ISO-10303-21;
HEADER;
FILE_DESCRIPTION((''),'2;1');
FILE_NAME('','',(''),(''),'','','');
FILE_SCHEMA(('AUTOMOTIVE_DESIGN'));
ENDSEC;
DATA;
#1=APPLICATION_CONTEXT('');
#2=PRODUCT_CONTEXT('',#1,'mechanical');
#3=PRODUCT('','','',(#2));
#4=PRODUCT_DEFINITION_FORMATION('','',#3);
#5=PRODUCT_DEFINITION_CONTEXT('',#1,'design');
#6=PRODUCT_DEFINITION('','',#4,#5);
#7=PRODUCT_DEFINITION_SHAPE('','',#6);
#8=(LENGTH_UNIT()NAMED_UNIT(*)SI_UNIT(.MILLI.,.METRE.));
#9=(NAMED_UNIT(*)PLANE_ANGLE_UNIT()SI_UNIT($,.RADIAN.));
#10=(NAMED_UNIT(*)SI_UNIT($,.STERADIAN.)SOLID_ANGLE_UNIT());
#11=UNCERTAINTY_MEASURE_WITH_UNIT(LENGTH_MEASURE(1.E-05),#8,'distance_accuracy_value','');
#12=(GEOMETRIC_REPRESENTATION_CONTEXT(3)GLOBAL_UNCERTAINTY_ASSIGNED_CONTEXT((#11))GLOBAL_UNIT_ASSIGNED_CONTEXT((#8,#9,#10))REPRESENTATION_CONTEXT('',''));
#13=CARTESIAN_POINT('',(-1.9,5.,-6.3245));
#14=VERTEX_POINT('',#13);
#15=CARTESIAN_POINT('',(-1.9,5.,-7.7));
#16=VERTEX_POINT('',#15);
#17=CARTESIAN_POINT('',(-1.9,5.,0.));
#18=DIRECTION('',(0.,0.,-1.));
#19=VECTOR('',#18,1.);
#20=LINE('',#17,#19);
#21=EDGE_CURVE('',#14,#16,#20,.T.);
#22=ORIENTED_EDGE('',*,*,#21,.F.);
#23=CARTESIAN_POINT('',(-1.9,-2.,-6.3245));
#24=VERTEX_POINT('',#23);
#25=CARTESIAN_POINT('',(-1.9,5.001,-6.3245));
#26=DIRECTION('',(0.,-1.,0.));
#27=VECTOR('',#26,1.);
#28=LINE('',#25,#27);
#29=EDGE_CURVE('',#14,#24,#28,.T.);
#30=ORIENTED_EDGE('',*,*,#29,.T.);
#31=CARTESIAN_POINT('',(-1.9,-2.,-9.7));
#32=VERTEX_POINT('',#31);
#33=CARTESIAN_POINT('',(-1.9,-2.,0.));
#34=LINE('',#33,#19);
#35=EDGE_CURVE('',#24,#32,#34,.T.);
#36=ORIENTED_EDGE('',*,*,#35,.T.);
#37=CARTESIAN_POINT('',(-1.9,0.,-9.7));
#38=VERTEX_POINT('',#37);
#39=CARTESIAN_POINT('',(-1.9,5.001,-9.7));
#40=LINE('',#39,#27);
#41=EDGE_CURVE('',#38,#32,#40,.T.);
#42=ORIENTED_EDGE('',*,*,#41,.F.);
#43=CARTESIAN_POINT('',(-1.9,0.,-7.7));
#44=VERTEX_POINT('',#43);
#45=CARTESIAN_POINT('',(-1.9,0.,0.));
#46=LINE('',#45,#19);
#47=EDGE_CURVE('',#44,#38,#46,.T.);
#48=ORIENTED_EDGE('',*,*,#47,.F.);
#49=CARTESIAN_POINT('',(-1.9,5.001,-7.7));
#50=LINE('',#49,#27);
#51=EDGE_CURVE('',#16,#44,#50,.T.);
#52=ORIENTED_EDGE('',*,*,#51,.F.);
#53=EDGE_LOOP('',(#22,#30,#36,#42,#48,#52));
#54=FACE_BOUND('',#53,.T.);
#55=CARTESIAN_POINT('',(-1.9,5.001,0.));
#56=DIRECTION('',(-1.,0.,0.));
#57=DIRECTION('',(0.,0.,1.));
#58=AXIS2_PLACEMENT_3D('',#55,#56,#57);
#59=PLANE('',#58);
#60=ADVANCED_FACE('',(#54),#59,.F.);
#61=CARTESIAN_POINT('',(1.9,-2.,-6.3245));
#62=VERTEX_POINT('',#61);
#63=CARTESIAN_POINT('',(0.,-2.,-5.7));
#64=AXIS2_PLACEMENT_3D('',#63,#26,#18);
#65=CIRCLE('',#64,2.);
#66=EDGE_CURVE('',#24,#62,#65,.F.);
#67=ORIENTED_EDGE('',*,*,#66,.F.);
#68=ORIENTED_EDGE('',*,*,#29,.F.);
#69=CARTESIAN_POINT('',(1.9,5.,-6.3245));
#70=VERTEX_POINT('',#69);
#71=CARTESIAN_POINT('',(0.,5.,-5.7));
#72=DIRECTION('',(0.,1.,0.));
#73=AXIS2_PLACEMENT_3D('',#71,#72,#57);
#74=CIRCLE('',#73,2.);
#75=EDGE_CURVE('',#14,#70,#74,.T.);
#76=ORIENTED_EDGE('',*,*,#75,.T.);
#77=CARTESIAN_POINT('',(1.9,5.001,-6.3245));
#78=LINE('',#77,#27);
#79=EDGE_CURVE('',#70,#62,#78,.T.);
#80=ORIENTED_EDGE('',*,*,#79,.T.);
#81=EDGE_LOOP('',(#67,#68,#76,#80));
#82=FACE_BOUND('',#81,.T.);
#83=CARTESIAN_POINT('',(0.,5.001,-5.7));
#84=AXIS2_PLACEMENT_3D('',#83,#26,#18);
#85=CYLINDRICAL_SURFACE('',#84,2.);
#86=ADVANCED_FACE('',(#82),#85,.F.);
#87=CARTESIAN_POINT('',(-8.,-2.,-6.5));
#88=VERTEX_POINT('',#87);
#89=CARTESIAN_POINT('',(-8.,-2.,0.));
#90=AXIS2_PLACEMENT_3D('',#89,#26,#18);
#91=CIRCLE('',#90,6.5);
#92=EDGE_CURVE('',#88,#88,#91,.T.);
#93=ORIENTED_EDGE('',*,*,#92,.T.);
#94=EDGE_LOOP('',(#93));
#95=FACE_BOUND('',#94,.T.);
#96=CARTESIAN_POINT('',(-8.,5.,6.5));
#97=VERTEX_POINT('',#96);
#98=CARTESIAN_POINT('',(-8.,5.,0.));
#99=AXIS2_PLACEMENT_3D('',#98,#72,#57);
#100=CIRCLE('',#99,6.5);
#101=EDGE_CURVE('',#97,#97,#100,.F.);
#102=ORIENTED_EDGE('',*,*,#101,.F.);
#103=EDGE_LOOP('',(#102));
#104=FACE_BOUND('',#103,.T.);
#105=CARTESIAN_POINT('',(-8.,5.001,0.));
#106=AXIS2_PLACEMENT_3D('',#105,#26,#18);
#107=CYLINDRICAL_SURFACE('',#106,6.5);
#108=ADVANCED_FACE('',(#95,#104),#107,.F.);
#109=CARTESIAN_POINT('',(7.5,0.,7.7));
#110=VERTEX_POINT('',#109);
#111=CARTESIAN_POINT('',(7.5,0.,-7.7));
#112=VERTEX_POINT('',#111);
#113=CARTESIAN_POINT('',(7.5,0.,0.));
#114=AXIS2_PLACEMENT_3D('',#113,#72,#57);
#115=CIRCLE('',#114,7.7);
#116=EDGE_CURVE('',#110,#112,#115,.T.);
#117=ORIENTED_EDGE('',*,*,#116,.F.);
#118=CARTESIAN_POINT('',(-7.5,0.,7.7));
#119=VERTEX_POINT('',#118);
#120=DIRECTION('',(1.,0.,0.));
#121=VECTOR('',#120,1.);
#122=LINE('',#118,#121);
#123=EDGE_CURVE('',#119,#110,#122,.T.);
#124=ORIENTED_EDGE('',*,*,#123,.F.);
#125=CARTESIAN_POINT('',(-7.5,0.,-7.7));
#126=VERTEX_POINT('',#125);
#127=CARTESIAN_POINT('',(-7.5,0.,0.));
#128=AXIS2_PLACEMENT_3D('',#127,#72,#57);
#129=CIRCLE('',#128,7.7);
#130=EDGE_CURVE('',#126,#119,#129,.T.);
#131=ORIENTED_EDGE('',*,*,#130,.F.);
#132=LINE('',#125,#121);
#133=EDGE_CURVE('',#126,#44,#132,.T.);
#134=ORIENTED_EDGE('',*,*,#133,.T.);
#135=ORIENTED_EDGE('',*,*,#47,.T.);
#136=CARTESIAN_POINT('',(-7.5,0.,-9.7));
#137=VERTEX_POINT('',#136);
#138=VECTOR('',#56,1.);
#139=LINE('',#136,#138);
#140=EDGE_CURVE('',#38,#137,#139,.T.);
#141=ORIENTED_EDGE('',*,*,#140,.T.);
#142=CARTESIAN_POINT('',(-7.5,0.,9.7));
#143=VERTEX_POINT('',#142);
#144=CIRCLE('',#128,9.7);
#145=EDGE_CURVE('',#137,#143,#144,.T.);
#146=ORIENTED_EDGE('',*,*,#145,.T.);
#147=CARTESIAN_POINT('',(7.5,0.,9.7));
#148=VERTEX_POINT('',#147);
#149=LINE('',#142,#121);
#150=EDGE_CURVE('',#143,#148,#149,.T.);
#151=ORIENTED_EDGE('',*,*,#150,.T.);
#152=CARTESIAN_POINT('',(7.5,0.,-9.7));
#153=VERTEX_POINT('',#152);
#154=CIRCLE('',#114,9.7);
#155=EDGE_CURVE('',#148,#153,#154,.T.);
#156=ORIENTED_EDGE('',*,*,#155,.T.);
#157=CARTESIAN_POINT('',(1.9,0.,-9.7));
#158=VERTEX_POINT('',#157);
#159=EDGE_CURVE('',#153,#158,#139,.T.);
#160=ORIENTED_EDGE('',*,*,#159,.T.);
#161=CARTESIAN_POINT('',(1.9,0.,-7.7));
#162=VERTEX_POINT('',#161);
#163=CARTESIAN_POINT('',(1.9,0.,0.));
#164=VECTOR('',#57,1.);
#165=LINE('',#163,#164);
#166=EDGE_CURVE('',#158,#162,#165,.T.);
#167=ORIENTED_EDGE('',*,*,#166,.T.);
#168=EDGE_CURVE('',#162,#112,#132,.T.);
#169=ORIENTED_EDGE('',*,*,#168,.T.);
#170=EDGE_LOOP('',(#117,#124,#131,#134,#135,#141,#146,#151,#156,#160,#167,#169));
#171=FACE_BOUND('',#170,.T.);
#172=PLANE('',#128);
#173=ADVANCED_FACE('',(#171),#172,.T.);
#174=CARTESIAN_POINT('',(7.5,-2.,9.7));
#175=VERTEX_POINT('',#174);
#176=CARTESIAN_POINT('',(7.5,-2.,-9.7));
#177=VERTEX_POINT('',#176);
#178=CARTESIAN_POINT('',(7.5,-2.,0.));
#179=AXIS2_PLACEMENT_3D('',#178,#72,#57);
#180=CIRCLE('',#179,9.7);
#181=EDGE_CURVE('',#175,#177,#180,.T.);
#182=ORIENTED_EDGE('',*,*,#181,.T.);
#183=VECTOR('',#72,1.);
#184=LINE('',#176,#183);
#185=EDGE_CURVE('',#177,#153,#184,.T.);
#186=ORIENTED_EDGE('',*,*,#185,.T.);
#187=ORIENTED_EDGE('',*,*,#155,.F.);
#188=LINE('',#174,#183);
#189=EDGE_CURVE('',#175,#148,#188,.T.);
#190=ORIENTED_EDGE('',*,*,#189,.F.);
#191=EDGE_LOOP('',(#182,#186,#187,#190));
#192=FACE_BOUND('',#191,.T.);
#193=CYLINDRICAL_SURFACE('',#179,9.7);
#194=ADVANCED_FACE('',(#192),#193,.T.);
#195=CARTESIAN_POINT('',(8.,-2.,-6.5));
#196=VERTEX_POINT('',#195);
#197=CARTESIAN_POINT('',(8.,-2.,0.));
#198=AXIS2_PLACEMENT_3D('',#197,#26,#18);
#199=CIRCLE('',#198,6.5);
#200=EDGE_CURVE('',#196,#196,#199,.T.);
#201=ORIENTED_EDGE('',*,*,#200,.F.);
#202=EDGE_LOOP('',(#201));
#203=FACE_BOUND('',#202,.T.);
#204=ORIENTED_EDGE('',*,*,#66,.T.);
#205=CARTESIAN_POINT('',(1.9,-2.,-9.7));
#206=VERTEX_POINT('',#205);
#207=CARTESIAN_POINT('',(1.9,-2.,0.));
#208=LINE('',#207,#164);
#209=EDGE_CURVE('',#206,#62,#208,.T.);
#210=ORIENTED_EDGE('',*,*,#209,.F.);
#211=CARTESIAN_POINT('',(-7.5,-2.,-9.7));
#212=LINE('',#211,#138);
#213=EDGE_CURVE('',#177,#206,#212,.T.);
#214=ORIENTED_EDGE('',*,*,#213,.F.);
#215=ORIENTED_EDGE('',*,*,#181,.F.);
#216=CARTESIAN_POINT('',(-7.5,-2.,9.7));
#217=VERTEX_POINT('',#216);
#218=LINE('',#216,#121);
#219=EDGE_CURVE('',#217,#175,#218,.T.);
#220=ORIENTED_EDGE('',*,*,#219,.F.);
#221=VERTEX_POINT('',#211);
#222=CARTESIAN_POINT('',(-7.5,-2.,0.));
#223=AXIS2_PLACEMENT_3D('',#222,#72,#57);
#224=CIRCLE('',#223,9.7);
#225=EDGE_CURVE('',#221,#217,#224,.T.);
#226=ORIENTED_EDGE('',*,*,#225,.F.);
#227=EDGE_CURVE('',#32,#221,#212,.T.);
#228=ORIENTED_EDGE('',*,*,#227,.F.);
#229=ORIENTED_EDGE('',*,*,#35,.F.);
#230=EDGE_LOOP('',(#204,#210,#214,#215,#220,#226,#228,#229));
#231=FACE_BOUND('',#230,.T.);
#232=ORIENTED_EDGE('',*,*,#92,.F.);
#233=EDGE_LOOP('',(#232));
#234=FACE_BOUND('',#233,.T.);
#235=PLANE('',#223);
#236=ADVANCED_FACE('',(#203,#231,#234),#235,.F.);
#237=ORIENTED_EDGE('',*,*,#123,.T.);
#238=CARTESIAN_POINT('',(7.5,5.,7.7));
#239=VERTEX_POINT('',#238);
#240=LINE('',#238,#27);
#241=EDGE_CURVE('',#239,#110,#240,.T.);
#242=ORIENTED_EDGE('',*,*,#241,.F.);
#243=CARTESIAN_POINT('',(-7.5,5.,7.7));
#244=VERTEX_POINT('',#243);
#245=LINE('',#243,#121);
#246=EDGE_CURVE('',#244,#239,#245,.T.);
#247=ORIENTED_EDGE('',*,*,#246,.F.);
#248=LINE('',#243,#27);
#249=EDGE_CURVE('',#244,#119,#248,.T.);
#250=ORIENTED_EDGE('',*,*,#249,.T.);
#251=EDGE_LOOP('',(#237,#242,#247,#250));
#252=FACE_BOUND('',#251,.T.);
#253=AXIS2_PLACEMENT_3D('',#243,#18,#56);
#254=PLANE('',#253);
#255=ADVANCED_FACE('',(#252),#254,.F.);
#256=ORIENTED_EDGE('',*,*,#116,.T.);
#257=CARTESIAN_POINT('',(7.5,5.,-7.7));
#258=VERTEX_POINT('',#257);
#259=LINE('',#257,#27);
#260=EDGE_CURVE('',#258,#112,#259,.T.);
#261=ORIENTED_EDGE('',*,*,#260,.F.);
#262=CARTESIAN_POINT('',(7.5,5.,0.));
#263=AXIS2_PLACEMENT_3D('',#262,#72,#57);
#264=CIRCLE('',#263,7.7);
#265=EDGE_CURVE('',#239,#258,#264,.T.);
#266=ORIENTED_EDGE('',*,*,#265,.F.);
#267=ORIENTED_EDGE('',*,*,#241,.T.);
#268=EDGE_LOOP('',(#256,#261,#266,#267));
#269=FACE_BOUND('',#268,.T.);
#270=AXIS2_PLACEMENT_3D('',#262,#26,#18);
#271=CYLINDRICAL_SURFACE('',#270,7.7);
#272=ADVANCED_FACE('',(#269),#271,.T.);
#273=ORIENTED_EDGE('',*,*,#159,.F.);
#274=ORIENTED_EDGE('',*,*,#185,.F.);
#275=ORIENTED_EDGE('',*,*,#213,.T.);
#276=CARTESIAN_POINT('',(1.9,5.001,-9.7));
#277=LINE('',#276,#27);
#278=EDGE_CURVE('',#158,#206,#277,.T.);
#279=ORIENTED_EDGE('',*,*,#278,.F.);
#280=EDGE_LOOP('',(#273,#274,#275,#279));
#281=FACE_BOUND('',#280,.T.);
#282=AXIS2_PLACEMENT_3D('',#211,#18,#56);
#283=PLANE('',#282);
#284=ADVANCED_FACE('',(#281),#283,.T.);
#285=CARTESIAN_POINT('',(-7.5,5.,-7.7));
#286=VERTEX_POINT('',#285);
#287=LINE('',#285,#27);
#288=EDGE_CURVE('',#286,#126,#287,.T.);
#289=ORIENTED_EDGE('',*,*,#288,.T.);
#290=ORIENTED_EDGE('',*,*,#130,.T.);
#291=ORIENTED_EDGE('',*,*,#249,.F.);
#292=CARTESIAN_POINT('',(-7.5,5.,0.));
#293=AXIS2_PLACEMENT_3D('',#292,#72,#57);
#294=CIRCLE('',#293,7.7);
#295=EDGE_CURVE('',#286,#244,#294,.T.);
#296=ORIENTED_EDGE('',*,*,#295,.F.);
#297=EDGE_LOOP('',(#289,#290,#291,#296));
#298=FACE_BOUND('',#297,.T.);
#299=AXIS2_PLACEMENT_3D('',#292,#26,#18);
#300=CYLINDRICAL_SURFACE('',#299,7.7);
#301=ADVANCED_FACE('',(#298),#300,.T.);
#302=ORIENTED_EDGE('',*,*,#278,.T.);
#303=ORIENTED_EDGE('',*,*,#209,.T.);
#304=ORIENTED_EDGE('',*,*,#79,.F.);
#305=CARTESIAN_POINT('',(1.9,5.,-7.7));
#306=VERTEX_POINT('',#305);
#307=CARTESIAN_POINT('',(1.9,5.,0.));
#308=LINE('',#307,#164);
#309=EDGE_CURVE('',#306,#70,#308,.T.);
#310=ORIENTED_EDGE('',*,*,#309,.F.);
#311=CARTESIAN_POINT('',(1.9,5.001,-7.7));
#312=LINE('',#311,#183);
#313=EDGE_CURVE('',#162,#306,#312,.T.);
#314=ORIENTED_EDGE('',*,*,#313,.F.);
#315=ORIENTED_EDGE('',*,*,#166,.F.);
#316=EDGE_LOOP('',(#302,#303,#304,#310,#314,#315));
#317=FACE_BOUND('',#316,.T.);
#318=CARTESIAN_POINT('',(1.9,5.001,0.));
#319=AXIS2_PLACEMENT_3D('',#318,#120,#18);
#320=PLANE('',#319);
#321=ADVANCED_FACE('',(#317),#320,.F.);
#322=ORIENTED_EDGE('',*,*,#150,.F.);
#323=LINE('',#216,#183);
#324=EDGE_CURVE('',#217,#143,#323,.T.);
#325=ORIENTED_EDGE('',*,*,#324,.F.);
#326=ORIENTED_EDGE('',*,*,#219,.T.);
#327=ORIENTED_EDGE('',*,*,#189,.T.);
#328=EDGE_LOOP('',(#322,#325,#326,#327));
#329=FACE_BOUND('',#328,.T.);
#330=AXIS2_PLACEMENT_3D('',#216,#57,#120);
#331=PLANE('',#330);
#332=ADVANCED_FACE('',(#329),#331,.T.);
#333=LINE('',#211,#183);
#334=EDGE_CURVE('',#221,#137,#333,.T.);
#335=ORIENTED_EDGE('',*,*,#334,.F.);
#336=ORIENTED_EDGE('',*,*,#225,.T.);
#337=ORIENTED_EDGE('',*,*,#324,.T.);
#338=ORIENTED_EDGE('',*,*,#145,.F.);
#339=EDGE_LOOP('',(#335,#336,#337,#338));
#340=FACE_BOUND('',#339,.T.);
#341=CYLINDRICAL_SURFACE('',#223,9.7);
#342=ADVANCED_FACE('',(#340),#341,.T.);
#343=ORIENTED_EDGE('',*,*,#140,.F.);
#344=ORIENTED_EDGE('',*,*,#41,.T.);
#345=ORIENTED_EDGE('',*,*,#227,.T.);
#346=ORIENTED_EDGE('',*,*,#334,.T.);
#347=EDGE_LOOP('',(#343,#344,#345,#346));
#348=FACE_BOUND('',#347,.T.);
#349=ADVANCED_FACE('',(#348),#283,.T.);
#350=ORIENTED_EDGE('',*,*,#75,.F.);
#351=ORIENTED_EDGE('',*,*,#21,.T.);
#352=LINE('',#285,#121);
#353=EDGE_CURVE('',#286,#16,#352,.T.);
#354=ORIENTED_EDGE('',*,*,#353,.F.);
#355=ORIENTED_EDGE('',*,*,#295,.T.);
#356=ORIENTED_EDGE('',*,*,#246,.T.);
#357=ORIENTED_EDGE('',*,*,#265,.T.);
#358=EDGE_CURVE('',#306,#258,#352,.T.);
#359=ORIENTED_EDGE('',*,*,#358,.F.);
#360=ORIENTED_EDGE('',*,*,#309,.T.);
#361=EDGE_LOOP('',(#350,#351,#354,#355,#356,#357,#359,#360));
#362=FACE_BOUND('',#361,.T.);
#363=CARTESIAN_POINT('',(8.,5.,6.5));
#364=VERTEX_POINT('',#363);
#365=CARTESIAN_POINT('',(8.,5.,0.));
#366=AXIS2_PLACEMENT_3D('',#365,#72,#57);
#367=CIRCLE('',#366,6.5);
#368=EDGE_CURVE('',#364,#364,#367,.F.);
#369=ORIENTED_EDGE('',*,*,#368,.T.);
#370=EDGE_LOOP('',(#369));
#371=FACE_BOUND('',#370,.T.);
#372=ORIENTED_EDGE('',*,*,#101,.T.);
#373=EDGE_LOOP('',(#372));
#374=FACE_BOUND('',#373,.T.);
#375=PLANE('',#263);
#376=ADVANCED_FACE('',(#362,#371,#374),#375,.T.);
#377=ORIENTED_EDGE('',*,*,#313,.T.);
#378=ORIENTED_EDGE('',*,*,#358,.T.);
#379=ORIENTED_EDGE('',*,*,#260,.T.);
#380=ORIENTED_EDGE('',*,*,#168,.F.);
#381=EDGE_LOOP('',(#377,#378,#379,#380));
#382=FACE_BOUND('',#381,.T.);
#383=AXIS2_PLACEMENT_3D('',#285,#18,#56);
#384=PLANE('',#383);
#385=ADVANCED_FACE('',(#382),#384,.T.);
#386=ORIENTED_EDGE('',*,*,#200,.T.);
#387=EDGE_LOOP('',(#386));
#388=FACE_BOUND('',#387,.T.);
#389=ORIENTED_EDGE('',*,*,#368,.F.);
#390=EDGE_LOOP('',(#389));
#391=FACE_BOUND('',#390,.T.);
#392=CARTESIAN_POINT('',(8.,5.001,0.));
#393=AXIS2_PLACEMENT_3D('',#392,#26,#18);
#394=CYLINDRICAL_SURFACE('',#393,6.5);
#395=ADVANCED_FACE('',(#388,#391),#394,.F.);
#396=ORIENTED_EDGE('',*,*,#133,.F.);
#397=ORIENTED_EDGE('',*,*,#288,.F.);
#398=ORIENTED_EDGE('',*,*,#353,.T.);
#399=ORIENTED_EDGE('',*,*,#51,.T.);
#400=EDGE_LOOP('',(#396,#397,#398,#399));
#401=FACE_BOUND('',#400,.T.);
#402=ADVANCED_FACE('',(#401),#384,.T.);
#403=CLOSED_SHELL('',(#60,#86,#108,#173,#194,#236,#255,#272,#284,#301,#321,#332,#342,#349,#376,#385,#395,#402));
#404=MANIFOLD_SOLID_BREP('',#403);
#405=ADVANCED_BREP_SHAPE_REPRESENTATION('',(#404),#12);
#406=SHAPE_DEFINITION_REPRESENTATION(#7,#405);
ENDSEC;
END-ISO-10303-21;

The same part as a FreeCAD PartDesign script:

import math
import FreeCAD as App
import Part
import Sketcher
Q = App.Units.Quantity

doc = App.newDocument("Part")
body = doc.addObject("PartDesign::Body", "Body")

sketch1 = doc.addObject("Sketcher::SketchObject", "Sketch")
body.addObject(sketch1)
sketch1.AttachmentSupport = (doc.XZ_Plane, [""])
sketch1.MapMode = "FlatFace"
sketch1.addGeometry([
    Part.LineSegment(App.Vector(8, -10, 0), App.Vector(-8, -10, 0)),
    Part.ArcOfCircle(Part.Circle(App.Vector(-8, 0, 0), App.Vector(0, 0, 1), 10), math.radians(90), math.radians(270)),
    Part.LineSegment(App.Vector(-8, 10, 0), App.Vector(8, 10, 0)),
    Part.ArcOfCircle(Part.Circle(App.Vector(8, 0, 0), App.Vector(0, 0, 1), 10), math.radians(-90), math.radians(90)),
], False)
sketch1.addConstraint([
    Sketcher.Constraint("Tangent", 0, 2, 1, 2),
    Sketcher.Constraint("Tangent", 1, 1, 2, 1),
    Sketcher.Constraint("Tangent", 2, 2, 3, 2),
    Sketcher.Constraint("Tangent", 3, 1, 0, 1),
    Sketcher.Constraint("Horizontal", 0),
    Sketcher.Constraint("Horizontal", 2),
    Sketcher.Constraint("Symmetric", 1, 3, 3, 3, -1, 1),
    Sketcher.Constraint("Radius", 1, Q("9.7 mm")),
    Sketcher.Constraint("DistanceX", 0, 2, 0, 1, Q("15 mm")),
])
pad1 = doc.addObject("PartDesign::Pad", "Pad")
body.addObject(pad1)
pad1.Profile = sketch1
pad1.Length = 2

sketch2 = doc.addObject("Sketcher::SketchObject", "Sketch001")
body.addObject(sketch2)
sketch2.AttachmentSupport = (doc.XZ_Plane, [""])
sketch2.MapMode = "FlatFace"
sketch2.addGeometry([
    Part.LineSegment(App.Vector(8, -8, 0), App.Vector(-8, -8, 0)),
    Part.ArcOfCircle(Part.Circle(App.Vector(-8, 0, 0), App.Vector(0, 0, 1), 8), math.radians(90), math.radians(270)),
    Part.LineSegment(App.Vector(-8, 8, 0), App.Vector(8, 8, 0)),
    Part.ArcOfCircle(Part.Circle(App.Vector(8, 0, 0), App.Vector(0, 0, 1), 8), math.radians(-90), math.radians(90)),
], False)
sketch2.addConstraint([
    Sketcher.Constraint("Tangent", 0, 2, 1, 2),
    Sketcher.Constraint("Tangent", 1, 1, 2, 1),
    Sketcher.Constraint("Tangent", 2, 2, 3, 2),
    Sketcher.Constraint("Tangent", 3, 1, 0, 1),
    Sketcher.Constraint("Horizontal", 0),
    Sketcher.Constraint("Horizontal", 2),
    Sketcher.Constraint("Symmetric", 1, 3, 3, 3, -1, 1),
    Sketcher.Constraint("Radius", 1, Q("7.7 mm")),
    Sketcher.Constraint("DistanceX", 0, 2, 0, 1, Q("15 mm")),
])
pad2 = doc.addObject("PartDesign::Pad", "Pad001")
body.addObject(pad2)
pad2.Profile = sketch2
pad2.Length = 5
pad2.Reversed = True

sketch3 = doc.addObject("Sketcher::SketchObject", "Sketch002")
body.addObject(sketch3)
sketch3.AttachmentSupport = (doc.XZ_Plane, [""])
sketch3.MapMode = "FlatFace"
sketch3.AttachmentOffset = App.Placement(App.Vector(0, 0, 2), App.Rotation())
sketch3.addGeometry(Part.Circle(App.Vector(-8, 0, 0), App.Vector(0, 0, 1), 6), False)
sketch3.addConstraint([
    Sketcher.Constraint("PointOnObject", 0, 3, -1),
    Sketcher.Constraint("Diameter", 0, Q("13 mm")),
    Sketcher.Constraint("DistanceX", 0, 3, -1, 1, Q("8 mm")),
])
pocket1 = doc.addObject("PartDesign::Pocket", "Pocket")
body.addObject(pocket1)
pocket1.Profile = sketch3
pocket1.Type = "UpToFirst"

sketch4 = doc.addObject("Sketcher::SketchObject", "Sketch003")
body.addObject(sketch4)
sketch4.AttachmentSupport = (doc.XZ_Plane, [""])
sketch4.MapMode = "FlatFace"
sketch4.AttachmentOffset = App.Placement(App.Vector(0, 0, 2), App.Rotation())
sketch4.addGeometry(Part.Circle(App.Vector(8, 0, 0), App.Vector(0, 0, 1), 6), False)
sketch4.addConstraint([
    Sketcher.Constraint("PointOnObject", 0, 3, -1),
    Sketcher.Constraint("Diameter", 0, Q("13 mm")),
    Sketcher.Constraint("DistanceX", -1, 1, 0, 3, Q("8 mm")),
])
pocket2 = doc.addObject("PartDesign::Pocket", "Pocket001")
body.addObject(pocket2)
pocket2.Profile = sketch4
pocket2.Type = "UpToFirst"

sketch5 = doc.addObject("Sketcher::SketchObject", "Sketch004")
body.addObject(sketch5)
sketch5.AttachmentSupport = (doc.XZ_Plane, [""])
sketch5.MapMode = "FlatFace"
sketch5.AttachmentOffset = App.Placement(App.Vector(0, 0, 2), App.Rotation())
sketch5.addGeometry([
    Part.ArcOfCircle(Part.Circle(App.Vector(0, -5.7, 0), App.Vector(0, 0, 1), 2), math.radians(0), math.radians(180)),
    Part.LineSegment(App.Vector(-2, -5.7, 0), App.Vector(2, -5.7, 0)),
], False)
sketch5.addConstraint([
    Sketcher.Constraint("Coincident", 0, 1, 1, 2),
    Sketcher.Constraint("Coincident", 1, 1, 0, 2),
    Sketcher.Constraint("Horizontal", 1),
    Sketcher.Constraint("PointOnObject", 0, 3, -2),
    Sketcher.Constraint("Radius", 0, Q("2 mm")),
    Sketcher.Constraint("DistanceY", 0, 3, -1, 1, Q("5.7 mm")),
    Sketcher.Constraint("DistanceY", 0, 1, -1, 1, Q("5.7 mm")),
])
pocket3 = doc.addObject("PartDesign::Pocket", "Pocket002")
body.addObject(pocket3)
pocket3.Profile = sketch5
pocket3.Type = "UpToFirst"

sketch6 = doc.addObject("Sketcher::SketchObject", "Sketch005")
body.addObject(sketch6)
sketch6.AttachmentSupport = (doc.XZ_Plane, [""])
sketch6.MapMode = "FlatFace"
sketch6.AttachmentOffset = App.Placement(App.Vector(0, 0, 2), App.Rotation())
sketch6.addGeometry([
    Part.LineSegment(App.Vector(2, -5.7, 0), App.Vector(-2, -5.7, 0)),
    Part.ArcOfCircle(Part.Circle(App.Vector(0, -5.7, 0), App.Vector(0, 0, 1), 2), math.radians(180), math.radians(198.19)),
    Part.LineSegment(App.Vector(-1.9, -6.3, 0), App.Vector(-1.9, -9.7, 0)),
    Part.LineSegment(App.Vector(-1.9, -9.7, 0), App.Vector(1.9, -9.7, 0)),
    Part.LineSegment(App.Vector(1.9, -9.7, 0), App.Vector(1.9, -6.3, 0)),
    Part.ArcOfCircle(Part.Circle(App.Vector(0, -5.7, 0), App.Vector(0, 0, 1), 2), math.radians(-18.19), math.radians(0)),
], False)
sketch6.addConstraint([
    Sketcher.Constraint("Coincident", 0, 2, 1, 1),
    Sketcher.Constraint("Coincident", 1, 2, 2, 1),
    Sketcher.Constraint("Coincident", 2, 2, 3, 1),
    Sketcher.Constraint("Coincident", 3, 2, 4, 1),
    Sketcher.Constraint("Coincident", 4, 2, 5, 1),
    Sketcher.Constraint("Coincident", 5, 2, 0, 1),
    Sketcher.Constraint("Horizontal", 0),
    Sketcher.Constraint("Vertical", 2),
    Sketcher.Constraint("Horizontal", 3),
    Sketcher.Constraint("Vertical", 4),
    Sketcher.Constraint("Coincident", 5, 3, 1, 3),
    Sketcher.Constraint("Equal", 1, 5),
    Sketcher.Constraint("Symmetric", 1, 2, 4, 2, -2),
    Sketcher.Constraint("Horizontal", 5, 3, 0, 2),
    Sketcher.Constraint("Radius", 1, Q("2 mm")),
    Sketcher.Constraint("DistanceX", 3, 1, 3, 2, Q("3.8 mm")),
    Sketcher.Constraint("DistanceY", 2, 2, 0, 2, Q("4 mm")),
    Sketcher.Constraint("DistanceY", 1, 3, -1, 1, Q("5.7 mm")),
])
pocket4 = doc.addObject("PartDesign::Pocket", "Pocket003")
body.addObject(pocket4)
pocket4.Profile = sketch6
pocket4.Type = "UpToFirst"

doc.recompute()
